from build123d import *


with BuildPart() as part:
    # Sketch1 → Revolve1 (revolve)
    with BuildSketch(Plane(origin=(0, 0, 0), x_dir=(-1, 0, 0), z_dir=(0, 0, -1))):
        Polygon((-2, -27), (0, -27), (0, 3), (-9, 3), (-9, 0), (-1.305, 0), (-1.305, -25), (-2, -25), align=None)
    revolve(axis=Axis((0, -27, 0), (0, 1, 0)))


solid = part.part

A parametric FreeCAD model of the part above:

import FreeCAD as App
import Part
import Sketcher

V = App.Vector

doc = App.newDocument("Part")
body = doc.addObject("PartDesign::Body", "Body")

# Sketch on XY plane
sketch1 = body.newObject("Sketcher::SketchObject", "Sketch")
sketch1.AttachmentSupport = (doc.getObject("XY_Plane"), [""])
sketch1.MapMode = "FlatFace"
sketch1.addGeometry([
    Part.LineSegment(V(2, -27, 0), V(0, -27, 0)),  # 0
    Part.LineSegment(V(0, -27, 0), V(0, 3, 0)),  # 1
    Part.LineSegment(V(0, 3, 0), V(9, 3, 0)),  # 2
    Part.LineSegment(V(9, 3, 0), V(9, 0, 0)),  # 3
    Part.LineSegment(V(9, 0, 0), V(1.3, 0, 0)),  # 4
    Part.LineSegment(V(1.3, 0, 0), V(1.3, -25, 0)),  # 5
    Part.LineSegment(V(1.3, -25, 0), V(2, -25, 0)),  # 6
    Part.LineSegment(V(2, -25, 0), V(2, -27, 0)),  # 7
], False)
sketch1.addConstraint([
    Sketcher.Constraint("Coincident", 0, 2, 1, 1),
    Sketcher.Constraint("Coincident", 1, 2, 2, 1),
    Sketcher.Constraint("Coincident", 2, 2, 3, 1),
    Sketcher.Constraint("Coincident", 3, 2, 4, 1),
    Sketcher.Constraint("Coincident", 4, 2, 5, 1),
    Sketcher.Constraint("Coincident", 5, 2, 6, 1),
    Sketcher.Constraint("Coincident", 6, 2, 7, 1),
    Sketcher.Constraint("Coincident", 7, 2, 0, 1),
    Sketcher.Constraint("Horizontal", 0),
    Sketcher.Constraint("Vertical", 1),
    Sketcher.Constraint("Horizontal", 2),
    Sketcher.Constraint("Vertical", 3),
    Sketcher.Constraint("Horizontal", 4),
    Sketcher.Constraint("Vertical", 5),
    Sketcher.Constraint("Horizontal", 6),
    Sketcher.Constraint("Vertical", 7),
    Sketcher.Constraint("PointOnObject", 0, 2, -2),
    Sketcher.Constraint("PointOnObject", 3, 2, -1),
    Sketcher.Constraint("Equal", 0, 7),
    Sketcher.Constraint("DistanceX", 0, 2, 0, 1, 2.0),
    Sketcher.Constraint("DistanceX", 2, 1, 2, 2, 9.0),
    Sketcher.Constraint("DistanceY", 1, 1, 1, 2, 30.0),
    Sketcher.Constraint("DistanceY", 3, 2, 3, 1, 3.0),
    Sketcher.Constraint("DistanceX", 4, 2, 4, 1, 7.695),
])
revolution = body.newObject("PartDesign::Revolution", "Revolution")
revolution.Profile = sketch1
revolution.ReferenceAxis = (sketch1, ["V_Axis"])
revolution.Angle = 360

doc.recompute()
